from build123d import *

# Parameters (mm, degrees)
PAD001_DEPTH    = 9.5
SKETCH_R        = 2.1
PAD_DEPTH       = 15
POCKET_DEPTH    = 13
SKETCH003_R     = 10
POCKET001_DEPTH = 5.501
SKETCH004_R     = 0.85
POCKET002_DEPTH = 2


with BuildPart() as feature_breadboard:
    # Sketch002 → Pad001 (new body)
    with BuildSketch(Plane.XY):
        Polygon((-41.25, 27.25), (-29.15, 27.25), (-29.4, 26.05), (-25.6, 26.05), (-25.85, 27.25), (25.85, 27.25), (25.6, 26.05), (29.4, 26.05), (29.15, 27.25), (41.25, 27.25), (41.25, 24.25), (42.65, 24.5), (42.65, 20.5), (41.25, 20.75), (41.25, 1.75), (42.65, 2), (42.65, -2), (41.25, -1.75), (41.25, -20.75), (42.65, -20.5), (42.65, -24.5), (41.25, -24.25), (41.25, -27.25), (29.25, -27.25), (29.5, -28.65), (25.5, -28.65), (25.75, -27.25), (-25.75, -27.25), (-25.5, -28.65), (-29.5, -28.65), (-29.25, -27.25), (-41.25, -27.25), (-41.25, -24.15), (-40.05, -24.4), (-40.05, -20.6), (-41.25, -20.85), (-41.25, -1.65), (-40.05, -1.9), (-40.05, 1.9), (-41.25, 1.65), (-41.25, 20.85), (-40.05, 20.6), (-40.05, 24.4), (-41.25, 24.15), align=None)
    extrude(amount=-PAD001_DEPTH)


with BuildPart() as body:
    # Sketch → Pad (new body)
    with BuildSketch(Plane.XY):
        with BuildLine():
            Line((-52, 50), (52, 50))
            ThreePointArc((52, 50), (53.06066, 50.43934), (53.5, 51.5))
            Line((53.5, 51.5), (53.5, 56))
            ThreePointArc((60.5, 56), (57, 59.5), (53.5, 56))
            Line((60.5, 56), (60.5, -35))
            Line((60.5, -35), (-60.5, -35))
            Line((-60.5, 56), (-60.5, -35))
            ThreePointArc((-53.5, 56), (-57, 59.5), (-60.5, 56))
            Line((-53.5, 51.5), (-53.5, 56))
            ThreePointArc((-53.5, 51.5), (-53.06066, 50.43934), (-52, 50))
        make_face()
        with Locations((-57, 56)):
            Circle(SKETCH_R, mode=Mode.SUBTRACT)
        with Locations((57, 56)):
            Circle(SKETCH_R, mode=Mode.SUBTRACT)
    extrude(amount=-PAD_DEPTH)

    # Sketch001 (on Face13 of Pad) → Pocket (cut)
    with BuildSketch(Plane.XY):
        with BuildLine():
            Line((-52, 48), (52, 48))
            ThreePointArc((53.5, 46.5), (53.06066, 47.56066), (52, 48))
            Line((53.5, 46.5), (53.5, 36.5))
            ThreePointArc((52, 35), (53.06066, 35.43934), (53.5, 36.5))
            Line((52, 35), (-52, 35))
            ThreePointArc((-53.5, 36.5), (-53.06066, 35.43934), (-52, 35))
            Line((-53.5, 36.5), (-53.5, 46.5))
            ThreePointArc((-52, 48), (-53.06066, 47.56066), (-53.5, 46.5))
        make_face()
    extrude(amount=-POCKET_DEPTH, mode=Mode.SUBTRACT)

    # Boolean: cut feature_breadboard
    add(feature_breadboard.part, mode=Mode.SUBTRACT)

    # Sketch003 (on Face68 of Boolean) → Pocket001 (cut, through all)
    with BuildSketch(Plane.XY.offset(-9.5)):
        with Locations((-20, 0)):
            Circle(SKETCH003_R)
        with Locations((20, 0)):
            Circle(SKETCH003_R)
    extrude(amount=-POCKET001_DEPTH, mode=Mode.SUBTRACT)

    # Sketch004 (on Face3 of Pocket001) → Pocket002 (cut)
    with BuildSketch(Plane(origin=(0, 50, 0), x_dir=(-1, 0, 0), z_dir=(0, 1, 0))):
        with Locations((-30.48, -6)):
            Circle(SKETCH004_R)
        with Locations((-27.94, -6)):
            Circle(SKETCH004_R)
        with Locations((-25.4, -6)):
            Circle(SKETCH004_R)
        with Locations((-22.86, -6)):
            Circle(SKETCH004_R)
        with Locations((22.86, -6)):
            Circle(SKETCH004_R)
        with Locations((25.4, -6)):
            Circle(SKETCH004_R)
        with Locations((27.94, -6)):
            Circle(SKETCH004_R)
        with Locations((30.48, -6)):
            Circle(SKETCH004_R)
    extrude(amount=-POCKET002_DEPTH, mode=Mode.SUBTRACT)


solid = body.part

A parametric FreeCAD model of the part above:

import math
import FreeCAD as App
import Part
import Sketcher
from FreeCAD import Vector


def add_polygon(sketch, points):
    """Adds a closed chain of lines whose ends are joined by coincident constraints."""
    first, n = sketch.GeometryCount, len(points)
    for a, b in zip(points, points[1:] + points[:1]):
        sketch.addGeometry(Part.LineSegment(App.Vector(*a, 0), App.Vector(*b, 0)), False)
    for i in range(n):
        sketch.addConstraint(Sketcher.Constraint("Coincident", first + i, 2, first + (i + 1) % n, 1))

doc = App.newDocument("Part")
params = doc.addObject("Spreadsheet::Sheet", "Params")
for row, (alias, value) in enumerate([
    ("sketch1_width", "12 mm"),
    ("sketch1_width2", "4 mm"),
    ("sketch1_height", "3 mm"),
    ("sketch1_height2", "19 mm"),
    ("sketch1_width3", "12.1 mm"),
    ("pad1_length", "9.5 mm"),
    ("sketch2_diameter", "4.2 mm"),
    ("sketch2_radius", "1.500001 mm"),
    ("sketch2_radius2", "3.5 mm"),
    ("sketch2_width", "104 mm"),
    ("sketch2_height", "91 mm"),
    ("pad2_length", "15 mm"),
    ("sketch3_radius", "1.500001 mm"),
    ("sketch3_width", "104 mm"),
    ("sketch3_height", "10 mm"),
    ("pocket1_length", "13 mm"),
    ("sketch4_diameter", "20 mm"),
    ("sketch5_diameter", "1.7 mm"),
    ("pocket3_length", "2 mm"),
], start=1):
    params.set(f"A{row}", alias)
    params.set(f"B{row}", "=" + value)
    params.setAlias(f"B{row}", alias)

body = doc.addObject("PartDesign::Body", "Body")

# Sketch on XY plane
sketch1 = body.newObject("Sketcher::SketchObject", "Sketch")
sketch1.AttachmentSupport = (doc.getObject("XY_Plane"), [""])
sketch1.MapMode = "FlatFace"
add_polygon(sketch1, [(-29.1, 27.2), (-41.2, 27.2), (-41.2, 24.1), (-40, 24.4), (-40, 20.6), (-41.2, 20.9), (-41.2, 1.6), (-40, 1.9), (-40, -1.9), (-41.2, -1.6), (-41.2, -20.9), (-40, -20.6), (-40, -24.4), (-41.2, -24.1), (-41.2, -27.2), (-29.2, -27.2), (-29.5, -28.6), (-25.5, -28.6), (-25.8, -27.2), (25.8, -27.2), (25.5, -28.6), (29.5, -28.6), (29.2, -27.2), (41.2, -27.2), (41.2, -24.2), (42.6, -24.5), (42.6, -20.5), (41.2, -20.8), (41.2, -1.8), (42.6, -2), (42.6, 2), (41.2, 1.8), (41.2, 20.8), (42.6, 20.5), (42.6, 24.5), (41.2, 24.2), (41.2, 27.2), (29.1, 27.2), (29.4, 26.1), (25.6, 26.1), (25.9, 27.2), (-25.9, 27.2), (-25.6, 26.1), (-29.4, 26.1)])  # lines 0-43
sketch1.addConstraint([
    Sketcher.Constraint("Horizontal", 0),
    Sketcher.Constraint("Vertical", 1),
    Sketcher.Constraint("Vertical", 3),
    Sketcher.Constraint("Vertical", 5),
    Sketcher.Constraint("Vertical", 7),
    Sketcher.Constraint("Vertical", 9),
    Sketcher.Constraint("Vertical", 11),
    Sketcher.Constraint("Vertical", 13),
    Sketcher.Constraint("Horizontal", 14),
    Sketcher.Constraint("Horizontal", 16),
    Sketcher.Constraint("Horizontal", 18),
    Sketcher.Constraint("Horizontal", 20),
    Sketcher.Constraint("Horizontal", 22),
    Sketcher.Constraint("Vertical", 23),
    Sketcher.Constraint("Vertical", 25),
    Sketcher.Constraint("Vertical", 27),
    Sketcher.Constraint("Vertical", 29),
    Sketcher.Constraint("Vertical", 31),
    Sketcher.Constraint("Vertical", 33),
    Sketcher.Constraint("Vertical", 35),
    Sketcher.Constraint("Horizontal", 36),
    Sketcher.Constraint("Horizontal", 38),
    Sketcher.Constraint("Horizontal", 40),
    Sketcher.Constraint("Horizontal", 42),
    Sketcher.Constraint("Symmetric", 0, 2, 22, 2, -1, 1),
    Sketcher.Constraint("Symmetric", 13, 2, 35, 2, -1, 1),
    Sketcher.Constraint("Symmetric", 16, 2, 19, 2, -2),
    Sketcher.Constraint("Symmetric", 14, 2, 21, 2, -2),
    Sketcher.Constraint("Symmetric", 38, 2, 41, 2, -2),
    Sketcher.Constraint("Symmetric", 5, 2, 8, 2, -1),
    Sketcher.Constraint("Symmetric", 3, 2, 10, 2, -1),
    Sketcher.Constraint("Symmetric", 1, 2, 12, 2, -1),
    Sketcher.Constraint("Symmetric", 27, 2, 30, 2, -1),
    Sketcher.Constraint("Symmetric", 25, 2, 32, 2, -1),
    Sketcher.Constraint("Parallel", 2, 6),
    Sketcher.Constraint("Parallel", 4, 8),
    Sketcher.Constraint("Parallel", 6, 10),
    Sketcher.Constraint("Parallel", 8, 12),
    Sketcher.Constraint("Parallel", 15, 19),
    Sketcher.Constraint("Parallel", 17, 21),
    Sketcher.Constraint("Perpendicular", 19, 24),
    Sketcher.Constraint("Perpendicular", 21, 26),
    Sketcher.Constraint("Parallel", 24, 28),
    Sketcher.Constraint("Parallel", 26, 30),
    Sketcher.Constraint("Parallel", 28, 32),
    Sketcher.Constraint("Parallel", 30, 34),
    Sketcher.Constraint("Perpendicular", 10, 37),
    Sketcher.Constraint("Perpendicular", 12, 39),
    Sketcher.Constraint("Parallel", 37, 41),
    Sketcher.Constraint("Parallel", 39, 43),
    Sketcher.Constraint("Horizontal", 14, 2, 17, 2),
    Sketcher.Constraint("Horizontal", 36, 2, 39, 2),
    Sketcher.Constraint("Vertical", 1, 2, 4, 2),
    Sketcher.Constraint("Vertical", 3, 2, 6, 2),
    Sketcher.Constraint("Vertical", 23, 2, 26, 2),
    Sketcher.Constraint("Vertical", 25, 2, 28, 2),
    Sketcher.Constraint("Equal", 16, 20),
    Sketcher.Constraint("Equal", 0, 36),
    Sketcher.Constraint("Equal", 38, 42),
    Sketcher.Constraint("Equal", 42, 3),
    Sketcher.Constraint("Equal", 3, 7),
    Sketcher.Constraint("Equal", 20, 25),
    Sketcher.Constraint("Equal", 25, 29),
    Sketcher.Constraint("Equal", 29, 33),
    Sketcher.Constraint("Equal", 21, 24),
    Sketcher.Constraint("Equal", 12, 37),
    Sketcher.Constraint("DistanceX", 14, 1, 14, 2, 12.0),
    Sketcher.Constraint("DistanceX", 16, 1, 16, 2, 4.0),
    Sketcher.Constraint("DistanceY", 23, 1, 23, 2, 3.0),
    Sketcher.Constraint("DistanceY", 27, 1, 27, 2, 19.0),
    Sketcher.Constraint("DistanceX", 0, 2, 0, 1, 12.1),
    Sketcher.Constraint("DistanceX", 18, 1, 18, 2, 51.5),
    Sketcher.Constraint("DistanceX", 38, 2, 38, 1, 3.8),
    Sketcher.Constraint("DistanceX", 40, 2, 40, 1, 51.7),
    Sketcher.Constraint("DistanceY", 1, 2, 1, 1, 3.1),
    Sketcher.Constraint("DistanceX", 14, 2, 18, 2, 55.0),
    Sketcher.Constraint("DistanceX", 1, 2, 2, 2, 1.2),
    Sketcher.Constraint("DistanceY", 15, 2, 14, 2, 1.4),
])
sketch1.setExpression("Constraints[110]", "Params.sketch1_width")
sketch1.setExpression("Constraints[111]", "Params.sketch1_width2")
sketch1.setExpression("Constraints[112]", "Params.sketch1_height")
sketch1.setExpression("Constraints[113]", "Params.sketch1_height2")
sketch1.setExpression("Constraints[114]", "Params.sketch1_width3")
pad1 = body.newObject("PartDesign::Pad", "Pad")
pad1.Profile = sketch1
pad1.setExpression("Length", "Params.pad1_length")
pad1.Reversed = True
body2 = doc.addObject("PartDesign::Body", "Body001")

# Sketch on XY plane
sketch2 = body2.newObject("Sketcher::SketchObject", "Sketch001")
sketch2.AttachmentSupport = (doc.getObject("XY_Plane001"), [""])
sketch2.MapMode = "FlatFace"
sketch2.addGeometry([
    Part.LineSegment(Vector(52, 50, 0), Vector(-52, 50, 0)),  # 0
    Part.ArcOfCircle(Part.Circle(Vector(-52, 51.5, 0), Vector(0, 0, 1), 1.5), math.radians(-180), math.radians(-90)),  # 1
    Part.LineSegment(Vector(-53.5, 51.5, 0), Vector(-53.5, 56, 0)),  # 2
    Part.ArcOfCircle(Part.Circle(Vector(-57, 56, 0), Vector(0, 0, 1), 3.5), math.radians(0), math.radians(180)),  # 3
    Part.LineSegment(Vector(-60.5, 56, 0), Vector(-60.5, -35, 0)),  # 4
    Part.LineSegment(Vector(-60.5, -35, 0), Vector(60.5, -35, 0)),  # 5
    Part.LineSegment(Vector(60.5, -35, 0), Vector(60.5, 56, 0)),  # 6
    Part.ArcOfCircle(Part.Circle(Vector(57, 56, 0), Vector(0, 0, 1), 3.5), math.radians(0), math.radians(180)),  # 7
    Part.LineSegment(Vector(53.5, 56, 0), Vector(53.5, 51.5, 0)),  # 8
    Part.ArcOfCircle(Part.Circle(Vector(52, 51.5, 0), Vector(0, 0, 1), 1.5), math.radians(-90), math.radians(0)),  # 9
    Part.Circle(Vector(57, 56, 0), Vector(0, 0, 1), 2.1),  # 10
    Part.Circle(Vector(-57, 56, 0), Vector(0, 0, 1), 2.1),  # 11
], False)
sketch2.addConstraint([
    Sketcher.Constraint("Tangent", 0, 2, 1, 2),
    Sketcher.Constraint("Tangent", 1, 1, 2, 1),
    Sketcher.Constraint("Tangent", 2, 2, 3, 1),
    Sketcher.Constraint("Tangent", 3, 2, 4, 1),
    Sketcher.Constraint("Coincident", 4, 2, 5, 1),
    Sketcher.Constraint("Coincident", 5, 2, 6, 1),
    Sketcher.Constraint("Tangent", 6, 2, 7, 1),
    Sketcher.Constraint("Tangent", 7, 2, 8, 1),
    Sketcher.Constraint("Tangent", 8, 2, 9, 2),
    Sketcher.Constraint("Tangent", 9, 1, 0, 1),
    Sketcher.Constraint("Horizontal", 0),
    Sketcher.Constraint("Vertical", 2),
    Sketcher.Constraint("Vertical", 4),
    Sketcher.Constraint("Horizontal", 5),
    Sketcher.Constraint("Vertical", 6),
    Sketcher.Constraint("Vertical", 8),
    Sketcher.Constraint("Coincident", 10, 3, 7, 3),
    Sketcher.Constraint("Coincident", 11, 3, 3, 3),
    Sketcher.Constraint("Equal", 3, 7),
    Sketcher.Constraint("Equal", 1, 9),
    Sketcher.Constraint("Equal", 10, 11),
    Sketcher.Constraint("Symmetric", 3, 3, 7, 3, -2),
    Sketcher.Constraint("Diameter", 10, 4.2),
    Sketcher.Constraint("Radius", 1, 1.500001),
    Sketcher.Constraint("Radius", 3, 3.5),
    Sketcher.Constraint("DistanceX", 0, 2, 0, 1, 104.0),
    Sketcher.Constraint("DistanceY", 4, 2, 4, 1, 91.0),
    Sketcher.Constraint("DistanceY", 2, 1, 2, 2, 4.5),
    Sketcher.Constraint("DistanceY", -1, 1, 3, 3, 56.0),
])
sketch2.setExpression("Constraints[22]", "Params.sketch2_diameter")
sketch2.setExpression("Constraints[23]", "Params.sketch2_radius")
sketch2.setExpression("Constraints[24]", "Params.sketch2_radius2")
sketch2.setExpression("Constraints[25]", "Params.sketch2_width")
sketch2.setExpression("Constraints[26]", "Params.sketch2_height")
pad2 = body2.newObject("PartDesign::Pad", "Pad001")
pad2.Profile = sketch2
pad2.setExpression("Length", "Params.pad2_length")
pad2.Reversed = True

# Sketch on XY plane
sketch3 = body2.newObject("Sketcher::SketchObject", "Sketch002")
sketch3.AttachmentSupport = (doc.getObject("XY_Plane001"), [""])
sketch3.MapMode = "FlatFace"
sketch3.addGeometry([
    Part.LineSegment(Vector(52, 48, 0), Vector(-52, 48, 0)),  # 0
    Part.ArcOfCircle(Part.Circle(Vector(-52, 46.5, 0), Vector(0, 0, 1), 1.5), math.radians(90), math.radians(180)),  # 1
    Part.LineSegment(Vector(-53.5, 46.5, 0), Vector(-53.5, 36.5, 0)),  # 2
    Part.ArcOfCircle(Part.Circle(Vector(-52, 36.5, 0), Vector(0, 0, 1), 1.5), math.radians(-180), math.radians(-90)),  # 3
    Part.LineSegment(Vector(-52, 35, 0), Vector(52, 35, 0)),  # 4
    Part.ArcOfCircle(Part.Circle(Vector(52, 36.5, 0), Vector(0, 0, 1), 1.5), math.radians(-90), math.radians(0)),  # 5
    Part.LineSegment(Vector(53.5, 36.5, 0), Vector(53.5, 46.5, 0)),  # 6
    Part.ArcOfCircle(Part.Circle(Vector(52, 46.5, 0), Vector(0, 0, 1), 1.5), math.radians(0), math.radians(90)),  # 7
], False)
sketch3.addConstraint([
    Sketcher.Constraint("Tangent", 0, 2, 1, 1),
    Sketcher.Constraint("Tangent", 1, 2, 2, 1),
    Sketcher.Constraint("Tangent", 2, 2, 3, 1),
    Sketcher.Constraint("Tangent", 3, 2, 4, 1),
    Sketcher.Constraint("Tangent", 4, 2, 5, 1),
    Sketcher.Constraint("Tangent", 5, 2, 6, 1),
    Sketcher.Constraint("Tangent", 6, 2, 7, 1),
    Sketcher.Constraint("Tangent", 7, 2, 0, 1),
    Sketcher.Constraint("Horizontal", 0),
    Sketcher.Constraint("Vertical", 2),
    Sketcher.Constraint("Horizontal", 4),
    Sketcher.Constraint("Vertical", 6),
    Sketcher.Constraint("Equal", 1, 3),
    Sketcher.Constraint("Equal", 3, 5),
    Sketcher.Constraint("Equal", 5, 7),
    Sketcher.Constraint("Radius", 1, 1.500001),
    Sketcher.Constraint("DistanceX", 0, 2, 0, 1, 104.0),
    Sketcher.Constraint("DistanceY", 2, 2, 2, 1, 10.0),
    Sketcher.Constraint("DistanceX", 1, 3, -1, 1, 51.999999),
    Sketcher.Constraint("DistanceY", -1, 1, 0, 2, 48.0),
])
sketch3.setExpression("Constraints[15]", "Params.sketch3_radius")
sketch3.setExpression("Constraints[16]", "Params.sketch3_width")
sketch3.setExpression("Constraints[17]", "Params.sketch3_height")
pocket1 = body2.newObject("PartDesign::Pocket", "Pocket")
pocket1.Profile = sketch3
pocket1.setExpression("Length", "Params.pocket1_length")
doc.recompute()

boolean = body2.newObject("PartDesign::Boolean", "Boolean")
boolean.Type = "Cut"
boolean.addObjects([body])

# Sketch on XY plane
sketch4 = body2.newObject("Sketcher::SketchObject", "Sketch003")
sketch4.AttachmentSupport = (doc.getObject("XY_Plane001"), [""])
sketch4.MapMode = "FlatFace"
sketch4.AttachmentOffset = App.Placement(Vector(0, 0, -9.5), App.Rotation())
sketch4.addGeometry([
    Part.Circle(Vector(-20, 0, 0), Vector(0, 0, 1), 10),
    Part.Circle(Vector(20, 0, 0), Vector(0, 0, 1), 10),
], False)
sketch4.addConstraint([
    Sketcher.Constraint("Equal", 0, 1),
    Sketcher.Constraint("Symmetric", 0, 3, 1, 3, -1, 1),
    Sketcher.Constraint("PointOnObject", 0, 3, -1),
    Sketcher.Constraint("Diameter", 0, 20.0),
    Sketcher.Constraint("DistanceX", 0, 3, -1, 1, 20.0),
])
sketch4.setExpression("Constraints[3]", "Params.sketch4_diameter")
pocket2 = body2.newObject("PartDesign::Pocket", "Pocket001")
pocket2.Profile = sketch4
pocket2.Type = "ThroughAll"

# Sketch on XZ plane
sketch5 = body2.newObject("Sketcher::SketchObject", "Sketch004")
sketch5.AttachmentSupport = (doc.getObject("XZ_Plane001"), [""])
sketch5.MapMode = "FlatFace"
sketch5.AttachmentOffset = App.Placement(Vector(0, 0, -50), App.Rotation())
sketch5.addGeometry([
    Part.Circle(Vector(30.5, -6, 0), Vector(0, 0, 1), 0.8),  # 0
    Part.Circle(Vector(27.9, -6, 0), Vector(0, 0, 1), 0.8),  # 1
    Part.Circle(Vector(25.4, -6, 0), Vector(0, 0, 1), 0.8),  # 2
    Part.Circle(Vector(22.9, -6, 0), Vector(0, 0, 1), 0.8),  # 3
    Part.Circle(Vector(-22.9, -6, 0), Vector(0, 0, 1), 0.8),  # 4
    Part.Circle(Vector(-25.4, -6, 0), Vector(0, 0, 1), 0.8),  # 5
    Part.Circle(Vector(-27.9, -6, 0), Vector(0, 0, 1), 0.8),  # 6
    Part.Circle(Vector(-30.5, -6, 0), Vector(0, 0, 1), 0.8),  # 7
], False)
sketch5.addConstraint([
    Sketcher.Constraint("Equal", 0, 1),
    Sketcher.Constraint("Equal", 1, 2),
    Sketcher.Constraint("Equal", 2, 3),
    Sketcher.Constraint("Equal", 3, 4),
    Sketcher.Constraint("Equal", 4, 5),
    Sketcher.Constraint("Equal", 5, 6),
    Sketcher.Constraint("Equal", 6, 7),
    Sketcher.Constraint("Symmetric", 3, 3, 4, 3, -2),
    Sketcher.Constraint("Symmetric", 2, 3, 5, 3, -2),
    Sketcher.Constraint("Symmetric", 1, 3, 6, 3, -2),
    Sketcher.Constraint("Symmetric", 0, 3, 7, 3, -2),
    Sketcher.Constraint("Horizontal", 0, 3, 1, 3),
    Sketcher.Constraint("Horizontal", 1, 3, 2, 3),
    Sketcher.Constraint("Horizontal", 2, 3, 3, 3),
    Sketcher.Constraint("Diameter", 0, 1.7),
    Sketcher.Constraint("DistanceY", 0, 3, -1, 1, 6.0),
    Sketcher.Constraint("DistanceX", -1, 1, 2, 3, 25.4),
    Sketcher.Constraint("DistanceX", 4, 3, 1, 3, 50.8),
    Sketcher.Constraint("DistanceX", -1, 1, 0, 3, 30.48),
    Sketcher.Constraint("DistanceX", -1, 1, 1, 3, 27.94),
])
sketch5.setExpression("Constraints[14]", "Params.sketch5_diameter")
pocket3 = body2.newObject("PartDesign::Pocket", "Pocket002")
pocket3.Profile = sketch5
pocket3.setExpression("Length", "Params.pocket3_length")
pocket3.Reversed = True

doc.recompute()
